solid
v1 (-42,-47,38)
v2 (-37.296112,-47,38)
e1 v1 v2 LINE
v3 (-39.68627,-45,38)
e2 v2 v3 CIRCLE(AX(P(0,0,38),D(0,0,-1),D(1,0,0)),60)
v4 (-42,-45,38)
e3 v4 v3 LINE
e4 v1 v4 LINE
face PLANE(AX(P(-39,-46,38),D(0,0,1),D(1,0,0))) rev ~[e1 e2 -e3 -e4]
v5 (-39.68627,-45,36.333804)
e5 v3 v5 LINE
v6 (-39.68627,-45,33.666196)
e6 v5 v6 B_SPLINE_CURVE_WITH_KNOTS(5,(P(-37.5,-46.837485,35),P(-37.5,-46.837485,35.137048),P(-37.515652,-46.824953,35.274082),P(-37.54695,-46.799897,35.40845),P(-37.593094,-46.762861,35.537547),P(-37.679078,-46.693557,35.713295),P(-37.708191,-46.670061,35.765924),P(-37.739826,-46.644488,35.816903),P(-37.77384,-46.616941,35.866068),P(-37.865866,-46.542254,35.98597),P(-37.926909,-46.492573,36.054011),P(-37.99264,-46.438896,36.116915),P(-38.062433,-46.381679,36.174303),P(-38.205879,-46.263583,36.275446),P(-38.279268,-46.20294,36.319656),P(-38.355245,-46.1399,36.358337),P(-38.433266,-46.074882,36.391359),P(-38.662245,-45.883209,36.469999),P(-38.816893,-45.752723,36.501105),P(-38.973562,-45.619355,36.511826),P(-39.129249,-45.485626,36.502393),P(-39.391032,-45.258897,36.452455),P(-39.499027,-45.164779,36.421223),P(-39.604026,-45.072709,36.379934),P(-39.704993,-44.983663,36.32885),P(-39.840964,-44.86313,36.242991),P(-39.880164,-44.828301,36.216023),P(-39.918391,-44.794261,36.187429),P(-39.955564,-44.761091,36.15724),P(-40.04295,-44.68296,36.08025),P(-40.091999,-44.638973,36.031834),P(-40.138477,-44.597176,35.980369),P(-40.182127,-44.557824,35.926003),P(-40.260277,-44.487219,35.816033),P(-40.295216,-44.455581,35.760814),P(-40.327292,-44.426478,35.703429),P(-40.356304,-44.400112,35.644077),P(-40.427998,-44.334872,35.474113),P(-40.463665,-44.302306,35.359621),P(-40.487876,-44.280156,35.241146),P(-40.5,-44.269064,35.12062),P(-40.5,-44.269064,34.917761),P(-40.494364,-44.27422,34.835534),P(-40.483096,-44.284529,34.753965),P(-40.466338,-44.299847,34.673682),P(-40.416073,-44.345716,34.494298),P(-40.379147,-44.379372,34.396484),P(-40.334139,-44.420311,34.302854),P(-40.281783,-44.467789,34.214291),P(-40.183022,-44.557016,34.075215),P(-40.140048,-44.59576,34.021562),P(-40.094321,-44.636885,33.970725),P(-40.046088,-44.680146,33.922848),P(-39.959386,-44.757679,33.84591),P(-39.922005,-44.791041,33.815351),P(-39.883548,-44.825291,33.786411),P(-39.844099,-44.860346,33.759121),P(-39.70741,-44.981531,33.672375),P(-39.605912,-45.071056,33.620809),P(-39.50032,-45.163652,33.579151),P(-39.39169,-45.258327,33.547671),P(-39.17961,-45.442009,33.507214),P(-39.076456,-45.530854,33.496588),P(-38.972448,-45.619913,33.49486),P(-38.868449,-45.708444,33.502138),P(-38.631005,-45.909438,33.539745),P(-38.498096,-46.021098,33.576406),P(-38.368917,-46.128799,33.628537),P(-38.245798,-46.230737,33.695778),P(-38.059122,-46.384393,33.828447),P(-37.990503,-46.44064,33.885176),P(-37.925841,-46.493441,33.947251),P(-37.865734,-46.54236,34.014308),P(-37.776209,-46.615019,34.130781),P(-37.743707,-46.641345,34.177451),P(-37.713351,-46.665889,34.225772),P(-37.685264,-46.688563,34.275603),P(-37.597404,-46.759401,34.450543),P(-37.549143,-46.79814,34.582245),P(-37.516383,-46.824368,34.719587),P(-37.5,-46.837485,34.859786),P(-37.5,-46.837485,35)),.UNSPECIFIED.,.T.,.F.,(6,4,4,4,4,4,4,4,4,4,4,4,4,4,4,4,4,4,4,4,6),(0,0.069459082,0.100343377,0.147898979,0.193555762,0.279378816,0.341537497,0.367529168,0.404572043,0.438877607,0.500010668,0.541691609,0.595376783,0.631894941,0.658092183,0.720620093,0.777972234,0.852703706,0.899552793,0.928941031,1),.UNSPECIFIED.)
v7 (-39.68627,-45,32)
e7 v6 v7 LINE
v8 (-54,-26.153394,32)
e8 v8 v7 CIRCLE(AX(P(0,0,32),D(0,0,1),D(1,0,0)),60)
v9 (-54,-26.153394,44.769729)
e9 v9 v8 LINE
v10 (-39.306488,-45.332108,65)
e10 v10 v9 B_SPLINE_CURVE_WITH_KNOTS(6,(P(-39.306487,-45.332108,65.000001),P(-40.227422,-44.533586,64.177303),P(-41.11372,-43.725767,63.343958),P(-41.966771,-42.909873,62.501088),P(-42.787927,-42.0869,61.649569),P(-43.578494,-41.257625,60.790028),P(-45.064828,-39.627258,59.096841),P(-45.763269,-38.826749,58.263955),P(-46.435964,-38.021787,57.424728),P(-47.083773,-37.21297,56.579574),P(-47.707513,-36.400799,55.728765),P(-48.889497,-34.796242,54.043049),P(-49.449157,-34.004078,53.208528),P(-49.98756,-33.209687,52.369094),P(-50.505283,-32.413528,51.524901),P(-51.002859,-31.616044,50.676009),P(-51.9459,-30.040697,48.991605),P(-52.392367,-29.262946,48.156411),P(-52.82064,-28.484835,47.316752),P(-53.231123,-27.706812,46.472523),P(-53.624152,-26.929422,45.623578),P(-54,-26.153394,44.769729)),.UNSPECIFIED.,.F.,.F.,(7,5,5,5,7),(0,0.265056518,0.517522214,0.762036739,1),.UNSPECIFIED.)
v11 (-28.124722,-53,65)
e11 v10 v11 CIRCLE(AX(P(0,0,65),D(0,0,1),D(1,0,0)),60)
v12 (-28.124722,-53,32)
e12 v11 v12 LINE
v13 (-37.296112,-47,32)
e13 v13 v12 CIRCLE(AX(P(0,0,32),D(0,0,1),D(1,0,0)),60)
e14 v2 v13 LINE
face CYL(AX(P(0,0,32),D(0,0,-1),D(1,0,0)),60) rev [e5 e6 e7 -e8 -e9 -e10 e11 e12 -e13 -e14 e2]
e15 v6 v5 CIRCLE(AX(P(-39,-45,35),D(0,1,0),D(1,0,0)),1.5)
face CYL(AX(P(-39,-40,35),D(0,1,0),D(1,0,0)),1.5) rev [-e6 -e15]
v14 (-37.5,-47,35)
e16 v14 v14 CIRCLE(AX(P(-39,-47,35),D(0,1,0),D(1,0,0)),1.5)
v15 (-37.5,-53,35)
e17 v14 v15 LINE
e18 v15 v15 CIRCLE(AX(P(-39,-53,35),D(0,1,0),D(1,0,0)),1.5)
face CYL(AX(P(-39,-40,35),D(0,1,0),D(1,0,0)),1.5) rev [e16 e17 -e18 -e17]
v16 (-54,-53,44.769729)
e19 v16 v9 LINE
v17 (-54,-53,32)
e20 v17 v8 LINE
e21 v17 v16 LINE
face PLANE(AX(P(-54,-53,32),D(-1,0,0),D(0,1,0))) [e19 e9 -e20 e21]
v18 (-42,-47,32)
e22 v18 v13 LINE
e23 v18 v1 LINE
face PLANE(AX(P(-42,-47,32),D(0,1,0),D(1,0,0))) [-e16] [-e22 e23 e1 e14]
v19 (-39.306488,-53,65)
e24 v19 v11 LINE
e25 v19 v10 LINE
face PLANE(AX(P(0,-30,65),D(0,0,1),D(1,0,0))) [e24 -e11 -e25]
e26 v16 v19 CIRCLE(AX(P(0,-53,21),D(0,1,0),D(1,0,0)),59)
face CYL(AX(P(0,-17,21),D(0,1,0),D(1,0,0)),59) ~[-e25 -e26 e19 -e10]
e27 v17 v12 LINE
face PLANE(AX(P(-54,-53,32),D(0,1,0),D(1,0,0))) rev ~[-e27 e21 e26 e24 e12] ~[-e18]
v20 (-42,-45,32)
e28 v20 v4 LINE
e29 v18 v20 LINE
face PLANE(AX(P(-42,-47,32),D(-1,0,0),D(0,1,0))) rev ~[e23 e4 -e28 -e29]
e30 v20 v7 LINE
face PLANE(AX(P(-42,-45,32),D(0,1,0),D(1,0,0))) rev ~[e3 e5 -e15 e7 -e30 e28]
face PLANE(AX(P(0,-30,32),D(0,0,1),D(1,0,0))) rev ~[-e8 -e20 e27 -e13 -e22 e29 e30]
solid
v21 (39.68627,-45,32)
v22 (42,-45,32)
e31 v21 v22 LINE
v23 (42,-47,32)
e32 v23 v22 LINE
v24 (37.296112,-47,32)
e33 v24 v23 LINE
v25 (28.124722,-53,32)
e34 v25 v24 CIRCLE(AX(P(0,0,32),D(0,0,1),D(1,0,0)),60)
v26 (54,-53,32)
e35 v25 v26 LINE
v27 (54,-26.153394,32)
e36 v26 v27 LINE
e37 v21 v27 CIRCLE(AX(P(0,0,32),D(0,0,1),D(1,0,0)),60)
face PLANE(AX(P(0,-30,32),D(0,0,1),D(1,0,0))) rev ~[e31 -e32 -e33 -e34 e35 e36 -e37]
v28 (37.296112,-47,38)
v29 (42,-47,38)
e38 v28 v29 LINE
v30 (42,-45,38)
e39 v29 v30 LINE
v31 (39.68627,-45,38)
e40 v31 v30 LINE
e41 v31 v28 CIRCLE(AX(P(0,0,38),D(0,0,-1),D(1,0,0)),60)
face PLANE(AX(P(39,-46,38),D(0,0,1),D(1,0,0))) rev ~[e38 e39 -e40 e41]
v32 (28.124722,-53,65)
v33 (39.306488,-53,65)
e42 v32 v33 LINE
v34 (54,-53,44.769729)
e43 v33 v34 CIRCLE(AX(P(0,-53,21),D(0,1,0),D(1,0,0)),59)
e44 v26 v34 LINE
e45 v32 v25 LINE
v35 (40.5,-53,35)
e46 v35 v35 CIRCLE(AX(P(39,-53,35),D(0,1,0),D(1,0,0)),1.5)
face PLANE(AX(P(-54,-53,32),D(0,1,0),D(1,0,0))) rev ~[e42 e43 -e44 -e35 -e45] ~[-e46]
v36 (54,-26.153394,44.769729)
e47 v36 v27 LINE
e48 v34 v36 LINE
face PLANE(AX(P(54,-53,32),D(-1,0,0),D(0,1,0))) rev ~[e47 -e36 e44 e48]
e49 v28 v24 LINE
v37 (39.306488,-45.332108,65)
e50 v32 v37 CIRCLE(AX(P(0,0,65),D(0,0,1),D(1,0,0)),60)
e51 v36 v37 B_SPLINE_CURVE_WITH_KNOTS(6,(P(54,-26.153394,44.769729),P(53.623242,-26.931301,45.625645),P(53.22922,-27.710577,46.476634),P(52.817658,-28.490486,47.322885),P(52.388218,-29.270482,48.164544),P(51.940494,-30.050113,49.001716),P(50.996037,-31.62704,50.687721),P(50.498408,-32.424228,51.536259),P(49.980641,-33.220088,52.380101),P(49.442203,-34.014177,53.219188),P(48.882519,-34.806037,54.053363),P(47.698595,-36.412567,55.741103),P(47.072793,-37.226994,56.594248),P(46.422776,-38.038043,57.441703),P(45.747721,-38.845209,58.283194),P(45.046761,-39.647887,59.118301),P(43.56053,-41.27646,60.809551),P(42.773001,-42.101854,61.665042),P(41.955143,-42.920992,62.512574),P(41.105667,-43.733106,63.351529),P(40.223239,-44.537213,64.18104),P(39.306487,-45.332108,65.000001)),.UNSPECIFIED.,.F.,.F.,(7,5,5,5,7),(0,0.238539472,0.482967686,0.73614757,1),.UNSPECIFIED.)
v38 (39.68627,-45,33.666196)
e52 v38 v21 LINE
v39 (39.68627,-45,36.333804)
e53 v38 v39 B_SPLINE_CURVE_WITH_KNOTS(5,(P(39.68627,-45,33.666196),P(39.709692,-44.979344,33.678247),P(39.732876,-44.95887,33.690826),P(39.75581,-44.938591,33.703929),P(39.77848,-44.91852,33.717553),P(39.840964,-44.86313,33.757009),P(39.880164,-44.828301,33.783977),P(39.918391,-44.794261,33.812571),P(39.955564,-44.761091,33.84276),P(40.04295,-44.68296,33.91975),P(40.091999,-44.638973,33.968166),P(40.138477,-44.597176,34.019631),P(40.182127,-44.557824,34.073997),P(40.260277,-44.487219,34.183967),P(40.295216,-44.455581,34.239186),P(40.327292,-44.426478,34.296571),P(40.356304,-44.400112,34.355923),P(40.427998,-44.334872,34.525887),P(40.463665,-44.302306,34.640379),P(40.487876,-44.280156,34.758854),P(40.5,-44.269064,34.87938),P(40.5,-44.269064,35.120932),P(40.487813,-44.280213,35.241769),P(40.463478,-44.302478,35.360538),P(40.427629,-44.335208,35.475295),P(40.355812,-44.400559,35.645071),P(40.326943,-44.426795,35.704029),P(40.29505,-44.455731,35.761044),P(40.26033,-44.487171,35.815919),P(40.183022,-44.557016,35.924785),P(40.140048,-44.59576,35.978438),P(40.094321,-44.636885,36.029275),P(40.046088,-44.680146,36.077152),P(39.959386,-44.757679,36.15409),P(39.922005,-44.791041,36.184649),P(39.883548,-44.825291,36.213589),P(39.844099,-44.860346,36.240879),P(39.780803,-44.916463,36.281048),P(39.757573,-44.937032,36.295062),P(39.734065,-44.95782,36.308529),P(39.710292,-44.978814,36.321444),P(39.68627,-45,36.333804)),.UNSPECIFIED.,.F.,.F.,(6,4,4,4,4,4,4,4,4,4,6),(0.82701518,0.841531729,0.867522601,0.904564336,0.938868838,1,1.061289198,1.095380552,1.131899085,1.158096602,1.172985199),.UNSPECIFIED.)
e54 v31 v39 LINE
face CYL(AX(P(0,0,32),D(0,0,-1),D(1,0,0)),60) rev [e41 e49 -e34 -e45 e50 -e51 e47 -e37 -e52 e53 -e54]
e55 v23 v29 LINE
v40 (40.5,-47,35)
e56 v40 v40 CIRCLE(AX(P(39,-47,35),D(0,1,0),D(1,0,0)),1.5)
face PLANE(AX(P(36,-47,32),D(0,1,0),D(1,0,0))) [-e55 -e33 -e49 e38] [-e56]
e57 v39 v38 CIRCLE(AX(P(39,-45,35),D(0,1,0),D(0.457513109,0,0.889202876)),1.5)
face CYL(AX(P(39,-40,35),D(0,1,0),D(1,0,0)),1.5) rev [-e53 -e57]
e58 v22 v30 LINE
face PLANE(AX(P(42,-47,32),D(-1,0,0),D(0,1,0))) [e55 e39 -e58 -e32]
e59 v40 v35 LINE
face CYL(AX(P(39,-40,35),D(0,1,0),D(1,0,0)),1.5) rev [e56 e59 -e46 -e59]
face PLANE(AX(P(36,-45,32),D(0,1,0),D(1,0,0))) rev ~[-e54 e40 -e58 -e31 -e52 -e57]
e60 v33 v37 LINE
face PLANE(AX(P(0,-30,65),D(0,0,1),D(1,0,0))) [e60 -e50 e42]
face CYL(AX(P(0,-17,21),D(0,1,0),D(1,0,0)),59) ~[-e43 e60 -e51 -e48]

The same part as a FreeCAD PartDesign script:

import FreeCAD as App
import Part
import Sketcher
Q = App.Units.Quantity


def add_polygon(sketch, points):
    """Adds a closed chain of lines whose ends are joined by coincident constraints."""
    first, n = sketch.GeometryCount, len(points)
    for a, b in zip(points, points[1:] + points[:1]):
        sketch.addGeometry(Part.LineSegment(App.Vector(*a, 0), App.Vector(*b, 0)), False)
    for i in range(n):
        sketch.addConstraint(Sketcher.Constraint("Coincident", first + i, 2, first + (i + 1) % n, 1))

doc = App.newDocument("Part")
params = doc.addObject("Spreadsheet::Sheet", "Params")
for row, (alias, value) in enumerate([
    ("sketch1_diameter", "118 mm"),
    ("pad1_length", "40 mm"),
    ("sketch2_width", "6 mm"),
    ("sketch2_height", "2 mm"),
    ("pad2_length", "6 mm"),
    ("sketch3_width", "6 mm"),
    ("sketch3_height", "2 mm"),
    ("pad3_length", "6 mm"),
    ("sketch4_diameter", "3 mm"),
    ("pad4_length", "20 mm"),
    ("sketch5_diameter", "3 mm"),
    ("pad5_length", "20 mm"),
    ("sketch6_diameter", "120 mm"),
    ("pad6_length", "33 mm"),
    ("sketch7_width", "108 mm"),
    ("sketch7_height", "46 mm"),
    ("pad7_length", "33 mm"),
], start=1):
    params.set(f"A{row}", alias)
    params.set(f"B{row}", "=" + value)
    params.setAlias(f"B{row}", alias)

body = doc.addObject("PartDesign::Body", "Body")

# Sketch on XZ plane
sketch1 = body.newObject("Sketcher::SketchObject", "Sketch")
sketch1.AttachmentSupport = (doc.getObject("XZ_Plane"), [""])
sketch1.MapMode = "FlatFace"
sketch1.AttachmentOffset = App.Placement(App.Vector(0, 0, 17), App.Rotation())
sketch1.addGeometry(Part.Circle(App.Vector(0, 21, 0), App.Vector(0, 0, 1), 59), False)
sketch1.addConstraint([
    Sketcher.Constraint("PointOnObject", 0, 3, -2),
    Sketcher.Constraint("Diameter", 0, Q("118 mm")),
    Sketcher.Constraint("DistanceY", -1, 1, 0, 3, Q("21 mm")),
])
sketch1.setExpression("Constraints[1]", "Params.sketch1_diameter")
pad1 = body.newObject("PartDesign::Pad", "Pad")
pad1.Profile = sketch1
pad1.setExpression("Length", "Params.pad1_length")
body2 = doc.addObject("PartDesign::Body", "Body001")

# Sketch on XY plane
sketch2 = body2.newObject("Sketcher::SketchObject", "Sketch001")
sketch2.AttachmentSupport = (doc.getObject("XY_Plane001"), [""])
sketch2.MapMode = "FlatFace"
sketch2.AttachmentOffset = App.Placement(App.Vector(0, 0, 31), App.Rotation())
add_polygon(sketch2, [(-42, -43), (-42, -45), (-36, -45), (-36, -43)])  # lines 0-3
sketch2.addConstraint([
    Sketcher.Constraint("Vertical", 0),
    Sketcher.Constraint("Horizontal", 1),
    Sketcher.Constraint("Vertical", 2),
    Sketcher.Constraint("Horizontal", 3),
    Sketcher.Constraint("DistanceX", 1, 1, 1, 2, Q("6 mm")),
    Sketcher.Constraint("DistanceY", 0, 2, 0, 1, Q("2 mm")),
    Sketcher.Constraint("DistanceX", 0, 2, -1, 1, Q("42 mm")),
    Sketcher.Constraint("DistanceY", 0, 2, -1, 1, Q("45 mm")),
])
sketch2.setExpression("Constraints[8]", "Params.sketch2_width")
sketch2.setExpression("Constraints[9]", "Params.sketch2_height")
pad2 = body2.newObject("PartDesign::Pad", "Pad001")
pad2.Profile = sketch2
pad2.setExpression("Length", "Params.pad2_length")
body3 = doc.addObject("PartDesign::Body", "Body002")
body3.AllowCompound = True

# Sketch on XY plane
sketch3 = body3.newObject("Sketcher::SketchObject", "Sketch002")
sketch3.AttachmentSupport = (doc.getObject("XY_Plane002"), [""])
sketch3.MapMode = "FlatFace"
sketch3.AttachmentOffset = App.Placement(App.Vector(0, 0, 31), App.Rotation())
add_polygon(sketch3, [(36, -43), (36, -45), (42, -45), (42, -43)])  # lines 0-3
sketch3.addConstraint([
    Sketcher.Constraint("Vertical", 0),
    Sketcher.Constraint("Horizontal", 1),
    Sketcher.Constraint("Vertical", 2),
    Sketcher.Constraint("Horizontal", 3),
    Sketcher.Constraint("DistanceX", 1, 1, 1, 2, Q("6 mm")),
    Sketcher.Constraint("DistanceY", 0, 2, 0, 1, Q("2 mm")),
    Sketcher.Constraint("DistanceX", -1, 1, 0, 2, Q("36 mm")),
    Sketcher.Constraint("DistanceY", 0, 2, -1, 1, Q("45 mm")),
])
sketch3.setExpression("Constraints[8]", "Params.sketch3_width")
sketch3.setExpression("Constraints[9]", "Params.sketch3_height")
pad3 = body3.newObject("PartDesign::Pad", "Pad002")
pad3.Profile = sketch3
pad3.setExpression("Length", "Params.pad3_length")
doc.recompute()

boolean = body3.newObject("PartDesign::Boolean", "Boolean")
boolean.Type = "Fuse"
boolean.addObjects([body2])
body4 = doc.addObject("PartDesign::Body", "Body003")
body4.AllowCompound = True
doc.recompute()

body3.Placement = App.Placement(App.Vector(0, -2, -11), App.Rotation(App.Vector(0, 0, 1), 0))
boolean2 = body4.newObject("PartDesign::Boolean", "Boolean001")
boolean2.Type = "Fuse"
boolean2.addObjects([body3])
body5 = doc.addObject("PartDesign::Body", "Body004")

# Sketch on XZ plane
sketch4 = body5.newObject("Sketcher::SketchObject", "Sketch003")
sketch4.AttachmentSupport = (doc.getObject("XZ_Plane004"), [""])
sketch4.MapMode = "FlatFace"
sketch4.AttachmentOffset = App.Placement(App.Vector(0, 0, 40), App.Rotation())
sketch4.addGeometry(Part.Circle(App.Vector(39, 34, 0), App.Vector(0, 0, 1), 1.5), False)
sketch4.addConstraint([
    Sketcher.Constraint("Diameter", 0, Q("3 mm")),
    Sketcher.Constraint("DistanceX", -1, 1, 0, 3, Q("39 mm")),
    Sketcher.Constraint("DistanceY", -1, 1, 0, 3, Q("34 mm")),
])
sketch4.setExpression("Constraints[0]", "Params.sketch4_diameter")
pad4 = body5.newObject("PartDesign::Pad", "Pad003")
pad4.Profile = sketch4
pad4.setExpression("Length", "Params.pad4_length")
body6 = doc.addObject("PartDesign::Body", "Body005")
body6.AllowCompound = True

# Sketch on XZ plane
sketch5 = body6.newObject("Sketcher::SketchObject", "Sketch004")
sketch5.AttachmentSupport = (doc.getObject("XZ_Plane005"), [""])
sketch5.MapMode = "FlatFace"
sketch5.AttachmentOffset = App.Placement(App.Vector(0, 0, 40), App.Rotation())
sketch5.addGeometry(Part.Circle(App.Vector(-39, 34, 0), App.Vector(0, 0, 1), 1.5), False)
sketch5.addConstraint([
    Sketcher.Constraint("Diameter", 0, Q("3 mm")),
    Sketcher.Constraint("DistanceX", 0, 3, -1, 1, Q("39 mm")),
    Sketcher.Constraint("DistanceY", -1, 1, 0, 3, Q("34 mm")),
])
sketch5.setExpression("Constraints[0]", "Params.sketch5_diameter")
pad5 = body6.newObject("PartDesign::Pad", "Pad004")
pad5.Profile = sketch5
pad5.setExpression("Length", "Params.pad5_length")
doc.recompute()

boolean3 = body6.newObject("PartDesign::Boolean", "Boolean002")
boolean3.Type = "Fuse"
boolean3.addObjects([body5])
body7 = doc.addObject("PartDesign::Body", "Body006")
body7.AllowCompound = True
doc.recompute()

body6.Placement = App.Placement(App.Vector(0, 0, -11), App.Rotation(App.Vector(0, 0, 1), 0))
boolean4 = body7.newObject("PartDesign::Boolean", "Boolean003")
boolean4.Type = "Fuse"
boolean4.addObjects([body6])
body8 = doc.addObject("PartDesign::Body", "Body007")

# Sketch on XY plane
sketch6 = body8.newObject("Sketcher::SketchObject", "Sketch005")
sketch6.AttachmentSupport = (doc.getObject("XY_Plane007"), [""])
sketch6.MapMode = "FlatFace"
sketch6.AttachmentOffset = App.Placement(App.Vector(0, 0, 20), App.Rotation())
sketch6.addGeometry(Part.Circle(App.Vector(0, 0, 0), App.Vector(0, 0, 1), 60), False)
sketch6.addConstraint([
    Sketcher.Constraint("Coincident", 0, 3, -1, 1),
    Sketcher.Constraint("Diameter", 0, Q("120 mm")),
])
sketch6.setExpression("Constraints[1]", "Params.sketch6_diameter")
pad6 = body8.newObject("PartDesign::Pad", "Pad005")
pad6.Profile = sketch6
pad6.setExpression("Length", "Params.pad6_length")
body9 = doc.addObject("PartDesign::Body", "Body008")
body9.AllowCompound = True

# Sketch on XY plane
sketch7 = body9.newObject("Sketcher::SketchObject", "Sketch006")
sketch7.AttachmentSupport = (doc.getObject("XY_Plane008"), [""])
sketch7.MapMode = "FlatFace"
sketch7.AttachmentOffset = App.Placement(App.Vector(0, 0, 20), App.Rotation())
add_polygon(sketch7, [(-54, -7), (-54, -53), (54, -53), (54, -7)])  # lines 0-3
sketch7.addConstraint([
    Sketcher.Constraint("Vertical", 0),
    Sketcher.Constraint("Horizontal", 1),
    Sketcher.Constraint("Vertical", 2),
    Sketcher.Constraint("Horizontal", 3),
    Sketcher.Constraint("DistanceX", 1, 1, 1, 2, Q("108 mm")),
    Sketcher.Constraint("DistanceY", 0, 2, 0, 1, Q("46 mm")),
    Sketcher.Constraint("DistanceX", 0, 2, -1, 1, Q("54 mm")),
    Sketcher.Constraint("DistanceY", 0, 2, -1, 1, Q("53 mm")),
])
sketch7.setExpression("Constraints[8]", "Params.sketch7_width")
sketch7.setExpression("Constraints[9]", "Params.sketch7_height")
pad7 = body9.newObject("PartDesign::Pad", "Pad006")
pad7.Profile = sketch7
pad7.setExpression("Length", "Params.pad7_length")
doc.recompute()

boolean5 = body9.newObject("PartDesign::Boolean", "Boolean004")
boolean5.Type = "Cut"
boolean5.addObjects([body8])
doc.recompute()

boolean6 = body9.newObject("PartDesign::Boolean", "Boolean005")
boolean6.Type = "Cut"
boolean6.addObjects([body7])
doc.recompute()

boolean7 = body9.newObject("PartDesign::Boolean", "Boolean006")
boolean7.Type = "Cut"
boolean7.addObjects([body4])
body10 = doc.addObject("PartDesign::Body", "Body009")
body10.AllowCompound = True
doc.recompute()

body9.Placement = App.Placement(App.Vector(0, 0, 12), App.Rotation(App.Vector(0, 0, 1), 0))
boolean8 = body10.newObject("PartDesign::Boolean", "Boolean007")
boolean8.Type = "Fuse"
boolean8.addObjects([body9])
doc.recompute()

boolean9 = body10.newObject("PartDesign::Boolean", "Boolean008")
boolean9.Type = "Common"
boolean9.addObjects([body])

doc.recompute()
